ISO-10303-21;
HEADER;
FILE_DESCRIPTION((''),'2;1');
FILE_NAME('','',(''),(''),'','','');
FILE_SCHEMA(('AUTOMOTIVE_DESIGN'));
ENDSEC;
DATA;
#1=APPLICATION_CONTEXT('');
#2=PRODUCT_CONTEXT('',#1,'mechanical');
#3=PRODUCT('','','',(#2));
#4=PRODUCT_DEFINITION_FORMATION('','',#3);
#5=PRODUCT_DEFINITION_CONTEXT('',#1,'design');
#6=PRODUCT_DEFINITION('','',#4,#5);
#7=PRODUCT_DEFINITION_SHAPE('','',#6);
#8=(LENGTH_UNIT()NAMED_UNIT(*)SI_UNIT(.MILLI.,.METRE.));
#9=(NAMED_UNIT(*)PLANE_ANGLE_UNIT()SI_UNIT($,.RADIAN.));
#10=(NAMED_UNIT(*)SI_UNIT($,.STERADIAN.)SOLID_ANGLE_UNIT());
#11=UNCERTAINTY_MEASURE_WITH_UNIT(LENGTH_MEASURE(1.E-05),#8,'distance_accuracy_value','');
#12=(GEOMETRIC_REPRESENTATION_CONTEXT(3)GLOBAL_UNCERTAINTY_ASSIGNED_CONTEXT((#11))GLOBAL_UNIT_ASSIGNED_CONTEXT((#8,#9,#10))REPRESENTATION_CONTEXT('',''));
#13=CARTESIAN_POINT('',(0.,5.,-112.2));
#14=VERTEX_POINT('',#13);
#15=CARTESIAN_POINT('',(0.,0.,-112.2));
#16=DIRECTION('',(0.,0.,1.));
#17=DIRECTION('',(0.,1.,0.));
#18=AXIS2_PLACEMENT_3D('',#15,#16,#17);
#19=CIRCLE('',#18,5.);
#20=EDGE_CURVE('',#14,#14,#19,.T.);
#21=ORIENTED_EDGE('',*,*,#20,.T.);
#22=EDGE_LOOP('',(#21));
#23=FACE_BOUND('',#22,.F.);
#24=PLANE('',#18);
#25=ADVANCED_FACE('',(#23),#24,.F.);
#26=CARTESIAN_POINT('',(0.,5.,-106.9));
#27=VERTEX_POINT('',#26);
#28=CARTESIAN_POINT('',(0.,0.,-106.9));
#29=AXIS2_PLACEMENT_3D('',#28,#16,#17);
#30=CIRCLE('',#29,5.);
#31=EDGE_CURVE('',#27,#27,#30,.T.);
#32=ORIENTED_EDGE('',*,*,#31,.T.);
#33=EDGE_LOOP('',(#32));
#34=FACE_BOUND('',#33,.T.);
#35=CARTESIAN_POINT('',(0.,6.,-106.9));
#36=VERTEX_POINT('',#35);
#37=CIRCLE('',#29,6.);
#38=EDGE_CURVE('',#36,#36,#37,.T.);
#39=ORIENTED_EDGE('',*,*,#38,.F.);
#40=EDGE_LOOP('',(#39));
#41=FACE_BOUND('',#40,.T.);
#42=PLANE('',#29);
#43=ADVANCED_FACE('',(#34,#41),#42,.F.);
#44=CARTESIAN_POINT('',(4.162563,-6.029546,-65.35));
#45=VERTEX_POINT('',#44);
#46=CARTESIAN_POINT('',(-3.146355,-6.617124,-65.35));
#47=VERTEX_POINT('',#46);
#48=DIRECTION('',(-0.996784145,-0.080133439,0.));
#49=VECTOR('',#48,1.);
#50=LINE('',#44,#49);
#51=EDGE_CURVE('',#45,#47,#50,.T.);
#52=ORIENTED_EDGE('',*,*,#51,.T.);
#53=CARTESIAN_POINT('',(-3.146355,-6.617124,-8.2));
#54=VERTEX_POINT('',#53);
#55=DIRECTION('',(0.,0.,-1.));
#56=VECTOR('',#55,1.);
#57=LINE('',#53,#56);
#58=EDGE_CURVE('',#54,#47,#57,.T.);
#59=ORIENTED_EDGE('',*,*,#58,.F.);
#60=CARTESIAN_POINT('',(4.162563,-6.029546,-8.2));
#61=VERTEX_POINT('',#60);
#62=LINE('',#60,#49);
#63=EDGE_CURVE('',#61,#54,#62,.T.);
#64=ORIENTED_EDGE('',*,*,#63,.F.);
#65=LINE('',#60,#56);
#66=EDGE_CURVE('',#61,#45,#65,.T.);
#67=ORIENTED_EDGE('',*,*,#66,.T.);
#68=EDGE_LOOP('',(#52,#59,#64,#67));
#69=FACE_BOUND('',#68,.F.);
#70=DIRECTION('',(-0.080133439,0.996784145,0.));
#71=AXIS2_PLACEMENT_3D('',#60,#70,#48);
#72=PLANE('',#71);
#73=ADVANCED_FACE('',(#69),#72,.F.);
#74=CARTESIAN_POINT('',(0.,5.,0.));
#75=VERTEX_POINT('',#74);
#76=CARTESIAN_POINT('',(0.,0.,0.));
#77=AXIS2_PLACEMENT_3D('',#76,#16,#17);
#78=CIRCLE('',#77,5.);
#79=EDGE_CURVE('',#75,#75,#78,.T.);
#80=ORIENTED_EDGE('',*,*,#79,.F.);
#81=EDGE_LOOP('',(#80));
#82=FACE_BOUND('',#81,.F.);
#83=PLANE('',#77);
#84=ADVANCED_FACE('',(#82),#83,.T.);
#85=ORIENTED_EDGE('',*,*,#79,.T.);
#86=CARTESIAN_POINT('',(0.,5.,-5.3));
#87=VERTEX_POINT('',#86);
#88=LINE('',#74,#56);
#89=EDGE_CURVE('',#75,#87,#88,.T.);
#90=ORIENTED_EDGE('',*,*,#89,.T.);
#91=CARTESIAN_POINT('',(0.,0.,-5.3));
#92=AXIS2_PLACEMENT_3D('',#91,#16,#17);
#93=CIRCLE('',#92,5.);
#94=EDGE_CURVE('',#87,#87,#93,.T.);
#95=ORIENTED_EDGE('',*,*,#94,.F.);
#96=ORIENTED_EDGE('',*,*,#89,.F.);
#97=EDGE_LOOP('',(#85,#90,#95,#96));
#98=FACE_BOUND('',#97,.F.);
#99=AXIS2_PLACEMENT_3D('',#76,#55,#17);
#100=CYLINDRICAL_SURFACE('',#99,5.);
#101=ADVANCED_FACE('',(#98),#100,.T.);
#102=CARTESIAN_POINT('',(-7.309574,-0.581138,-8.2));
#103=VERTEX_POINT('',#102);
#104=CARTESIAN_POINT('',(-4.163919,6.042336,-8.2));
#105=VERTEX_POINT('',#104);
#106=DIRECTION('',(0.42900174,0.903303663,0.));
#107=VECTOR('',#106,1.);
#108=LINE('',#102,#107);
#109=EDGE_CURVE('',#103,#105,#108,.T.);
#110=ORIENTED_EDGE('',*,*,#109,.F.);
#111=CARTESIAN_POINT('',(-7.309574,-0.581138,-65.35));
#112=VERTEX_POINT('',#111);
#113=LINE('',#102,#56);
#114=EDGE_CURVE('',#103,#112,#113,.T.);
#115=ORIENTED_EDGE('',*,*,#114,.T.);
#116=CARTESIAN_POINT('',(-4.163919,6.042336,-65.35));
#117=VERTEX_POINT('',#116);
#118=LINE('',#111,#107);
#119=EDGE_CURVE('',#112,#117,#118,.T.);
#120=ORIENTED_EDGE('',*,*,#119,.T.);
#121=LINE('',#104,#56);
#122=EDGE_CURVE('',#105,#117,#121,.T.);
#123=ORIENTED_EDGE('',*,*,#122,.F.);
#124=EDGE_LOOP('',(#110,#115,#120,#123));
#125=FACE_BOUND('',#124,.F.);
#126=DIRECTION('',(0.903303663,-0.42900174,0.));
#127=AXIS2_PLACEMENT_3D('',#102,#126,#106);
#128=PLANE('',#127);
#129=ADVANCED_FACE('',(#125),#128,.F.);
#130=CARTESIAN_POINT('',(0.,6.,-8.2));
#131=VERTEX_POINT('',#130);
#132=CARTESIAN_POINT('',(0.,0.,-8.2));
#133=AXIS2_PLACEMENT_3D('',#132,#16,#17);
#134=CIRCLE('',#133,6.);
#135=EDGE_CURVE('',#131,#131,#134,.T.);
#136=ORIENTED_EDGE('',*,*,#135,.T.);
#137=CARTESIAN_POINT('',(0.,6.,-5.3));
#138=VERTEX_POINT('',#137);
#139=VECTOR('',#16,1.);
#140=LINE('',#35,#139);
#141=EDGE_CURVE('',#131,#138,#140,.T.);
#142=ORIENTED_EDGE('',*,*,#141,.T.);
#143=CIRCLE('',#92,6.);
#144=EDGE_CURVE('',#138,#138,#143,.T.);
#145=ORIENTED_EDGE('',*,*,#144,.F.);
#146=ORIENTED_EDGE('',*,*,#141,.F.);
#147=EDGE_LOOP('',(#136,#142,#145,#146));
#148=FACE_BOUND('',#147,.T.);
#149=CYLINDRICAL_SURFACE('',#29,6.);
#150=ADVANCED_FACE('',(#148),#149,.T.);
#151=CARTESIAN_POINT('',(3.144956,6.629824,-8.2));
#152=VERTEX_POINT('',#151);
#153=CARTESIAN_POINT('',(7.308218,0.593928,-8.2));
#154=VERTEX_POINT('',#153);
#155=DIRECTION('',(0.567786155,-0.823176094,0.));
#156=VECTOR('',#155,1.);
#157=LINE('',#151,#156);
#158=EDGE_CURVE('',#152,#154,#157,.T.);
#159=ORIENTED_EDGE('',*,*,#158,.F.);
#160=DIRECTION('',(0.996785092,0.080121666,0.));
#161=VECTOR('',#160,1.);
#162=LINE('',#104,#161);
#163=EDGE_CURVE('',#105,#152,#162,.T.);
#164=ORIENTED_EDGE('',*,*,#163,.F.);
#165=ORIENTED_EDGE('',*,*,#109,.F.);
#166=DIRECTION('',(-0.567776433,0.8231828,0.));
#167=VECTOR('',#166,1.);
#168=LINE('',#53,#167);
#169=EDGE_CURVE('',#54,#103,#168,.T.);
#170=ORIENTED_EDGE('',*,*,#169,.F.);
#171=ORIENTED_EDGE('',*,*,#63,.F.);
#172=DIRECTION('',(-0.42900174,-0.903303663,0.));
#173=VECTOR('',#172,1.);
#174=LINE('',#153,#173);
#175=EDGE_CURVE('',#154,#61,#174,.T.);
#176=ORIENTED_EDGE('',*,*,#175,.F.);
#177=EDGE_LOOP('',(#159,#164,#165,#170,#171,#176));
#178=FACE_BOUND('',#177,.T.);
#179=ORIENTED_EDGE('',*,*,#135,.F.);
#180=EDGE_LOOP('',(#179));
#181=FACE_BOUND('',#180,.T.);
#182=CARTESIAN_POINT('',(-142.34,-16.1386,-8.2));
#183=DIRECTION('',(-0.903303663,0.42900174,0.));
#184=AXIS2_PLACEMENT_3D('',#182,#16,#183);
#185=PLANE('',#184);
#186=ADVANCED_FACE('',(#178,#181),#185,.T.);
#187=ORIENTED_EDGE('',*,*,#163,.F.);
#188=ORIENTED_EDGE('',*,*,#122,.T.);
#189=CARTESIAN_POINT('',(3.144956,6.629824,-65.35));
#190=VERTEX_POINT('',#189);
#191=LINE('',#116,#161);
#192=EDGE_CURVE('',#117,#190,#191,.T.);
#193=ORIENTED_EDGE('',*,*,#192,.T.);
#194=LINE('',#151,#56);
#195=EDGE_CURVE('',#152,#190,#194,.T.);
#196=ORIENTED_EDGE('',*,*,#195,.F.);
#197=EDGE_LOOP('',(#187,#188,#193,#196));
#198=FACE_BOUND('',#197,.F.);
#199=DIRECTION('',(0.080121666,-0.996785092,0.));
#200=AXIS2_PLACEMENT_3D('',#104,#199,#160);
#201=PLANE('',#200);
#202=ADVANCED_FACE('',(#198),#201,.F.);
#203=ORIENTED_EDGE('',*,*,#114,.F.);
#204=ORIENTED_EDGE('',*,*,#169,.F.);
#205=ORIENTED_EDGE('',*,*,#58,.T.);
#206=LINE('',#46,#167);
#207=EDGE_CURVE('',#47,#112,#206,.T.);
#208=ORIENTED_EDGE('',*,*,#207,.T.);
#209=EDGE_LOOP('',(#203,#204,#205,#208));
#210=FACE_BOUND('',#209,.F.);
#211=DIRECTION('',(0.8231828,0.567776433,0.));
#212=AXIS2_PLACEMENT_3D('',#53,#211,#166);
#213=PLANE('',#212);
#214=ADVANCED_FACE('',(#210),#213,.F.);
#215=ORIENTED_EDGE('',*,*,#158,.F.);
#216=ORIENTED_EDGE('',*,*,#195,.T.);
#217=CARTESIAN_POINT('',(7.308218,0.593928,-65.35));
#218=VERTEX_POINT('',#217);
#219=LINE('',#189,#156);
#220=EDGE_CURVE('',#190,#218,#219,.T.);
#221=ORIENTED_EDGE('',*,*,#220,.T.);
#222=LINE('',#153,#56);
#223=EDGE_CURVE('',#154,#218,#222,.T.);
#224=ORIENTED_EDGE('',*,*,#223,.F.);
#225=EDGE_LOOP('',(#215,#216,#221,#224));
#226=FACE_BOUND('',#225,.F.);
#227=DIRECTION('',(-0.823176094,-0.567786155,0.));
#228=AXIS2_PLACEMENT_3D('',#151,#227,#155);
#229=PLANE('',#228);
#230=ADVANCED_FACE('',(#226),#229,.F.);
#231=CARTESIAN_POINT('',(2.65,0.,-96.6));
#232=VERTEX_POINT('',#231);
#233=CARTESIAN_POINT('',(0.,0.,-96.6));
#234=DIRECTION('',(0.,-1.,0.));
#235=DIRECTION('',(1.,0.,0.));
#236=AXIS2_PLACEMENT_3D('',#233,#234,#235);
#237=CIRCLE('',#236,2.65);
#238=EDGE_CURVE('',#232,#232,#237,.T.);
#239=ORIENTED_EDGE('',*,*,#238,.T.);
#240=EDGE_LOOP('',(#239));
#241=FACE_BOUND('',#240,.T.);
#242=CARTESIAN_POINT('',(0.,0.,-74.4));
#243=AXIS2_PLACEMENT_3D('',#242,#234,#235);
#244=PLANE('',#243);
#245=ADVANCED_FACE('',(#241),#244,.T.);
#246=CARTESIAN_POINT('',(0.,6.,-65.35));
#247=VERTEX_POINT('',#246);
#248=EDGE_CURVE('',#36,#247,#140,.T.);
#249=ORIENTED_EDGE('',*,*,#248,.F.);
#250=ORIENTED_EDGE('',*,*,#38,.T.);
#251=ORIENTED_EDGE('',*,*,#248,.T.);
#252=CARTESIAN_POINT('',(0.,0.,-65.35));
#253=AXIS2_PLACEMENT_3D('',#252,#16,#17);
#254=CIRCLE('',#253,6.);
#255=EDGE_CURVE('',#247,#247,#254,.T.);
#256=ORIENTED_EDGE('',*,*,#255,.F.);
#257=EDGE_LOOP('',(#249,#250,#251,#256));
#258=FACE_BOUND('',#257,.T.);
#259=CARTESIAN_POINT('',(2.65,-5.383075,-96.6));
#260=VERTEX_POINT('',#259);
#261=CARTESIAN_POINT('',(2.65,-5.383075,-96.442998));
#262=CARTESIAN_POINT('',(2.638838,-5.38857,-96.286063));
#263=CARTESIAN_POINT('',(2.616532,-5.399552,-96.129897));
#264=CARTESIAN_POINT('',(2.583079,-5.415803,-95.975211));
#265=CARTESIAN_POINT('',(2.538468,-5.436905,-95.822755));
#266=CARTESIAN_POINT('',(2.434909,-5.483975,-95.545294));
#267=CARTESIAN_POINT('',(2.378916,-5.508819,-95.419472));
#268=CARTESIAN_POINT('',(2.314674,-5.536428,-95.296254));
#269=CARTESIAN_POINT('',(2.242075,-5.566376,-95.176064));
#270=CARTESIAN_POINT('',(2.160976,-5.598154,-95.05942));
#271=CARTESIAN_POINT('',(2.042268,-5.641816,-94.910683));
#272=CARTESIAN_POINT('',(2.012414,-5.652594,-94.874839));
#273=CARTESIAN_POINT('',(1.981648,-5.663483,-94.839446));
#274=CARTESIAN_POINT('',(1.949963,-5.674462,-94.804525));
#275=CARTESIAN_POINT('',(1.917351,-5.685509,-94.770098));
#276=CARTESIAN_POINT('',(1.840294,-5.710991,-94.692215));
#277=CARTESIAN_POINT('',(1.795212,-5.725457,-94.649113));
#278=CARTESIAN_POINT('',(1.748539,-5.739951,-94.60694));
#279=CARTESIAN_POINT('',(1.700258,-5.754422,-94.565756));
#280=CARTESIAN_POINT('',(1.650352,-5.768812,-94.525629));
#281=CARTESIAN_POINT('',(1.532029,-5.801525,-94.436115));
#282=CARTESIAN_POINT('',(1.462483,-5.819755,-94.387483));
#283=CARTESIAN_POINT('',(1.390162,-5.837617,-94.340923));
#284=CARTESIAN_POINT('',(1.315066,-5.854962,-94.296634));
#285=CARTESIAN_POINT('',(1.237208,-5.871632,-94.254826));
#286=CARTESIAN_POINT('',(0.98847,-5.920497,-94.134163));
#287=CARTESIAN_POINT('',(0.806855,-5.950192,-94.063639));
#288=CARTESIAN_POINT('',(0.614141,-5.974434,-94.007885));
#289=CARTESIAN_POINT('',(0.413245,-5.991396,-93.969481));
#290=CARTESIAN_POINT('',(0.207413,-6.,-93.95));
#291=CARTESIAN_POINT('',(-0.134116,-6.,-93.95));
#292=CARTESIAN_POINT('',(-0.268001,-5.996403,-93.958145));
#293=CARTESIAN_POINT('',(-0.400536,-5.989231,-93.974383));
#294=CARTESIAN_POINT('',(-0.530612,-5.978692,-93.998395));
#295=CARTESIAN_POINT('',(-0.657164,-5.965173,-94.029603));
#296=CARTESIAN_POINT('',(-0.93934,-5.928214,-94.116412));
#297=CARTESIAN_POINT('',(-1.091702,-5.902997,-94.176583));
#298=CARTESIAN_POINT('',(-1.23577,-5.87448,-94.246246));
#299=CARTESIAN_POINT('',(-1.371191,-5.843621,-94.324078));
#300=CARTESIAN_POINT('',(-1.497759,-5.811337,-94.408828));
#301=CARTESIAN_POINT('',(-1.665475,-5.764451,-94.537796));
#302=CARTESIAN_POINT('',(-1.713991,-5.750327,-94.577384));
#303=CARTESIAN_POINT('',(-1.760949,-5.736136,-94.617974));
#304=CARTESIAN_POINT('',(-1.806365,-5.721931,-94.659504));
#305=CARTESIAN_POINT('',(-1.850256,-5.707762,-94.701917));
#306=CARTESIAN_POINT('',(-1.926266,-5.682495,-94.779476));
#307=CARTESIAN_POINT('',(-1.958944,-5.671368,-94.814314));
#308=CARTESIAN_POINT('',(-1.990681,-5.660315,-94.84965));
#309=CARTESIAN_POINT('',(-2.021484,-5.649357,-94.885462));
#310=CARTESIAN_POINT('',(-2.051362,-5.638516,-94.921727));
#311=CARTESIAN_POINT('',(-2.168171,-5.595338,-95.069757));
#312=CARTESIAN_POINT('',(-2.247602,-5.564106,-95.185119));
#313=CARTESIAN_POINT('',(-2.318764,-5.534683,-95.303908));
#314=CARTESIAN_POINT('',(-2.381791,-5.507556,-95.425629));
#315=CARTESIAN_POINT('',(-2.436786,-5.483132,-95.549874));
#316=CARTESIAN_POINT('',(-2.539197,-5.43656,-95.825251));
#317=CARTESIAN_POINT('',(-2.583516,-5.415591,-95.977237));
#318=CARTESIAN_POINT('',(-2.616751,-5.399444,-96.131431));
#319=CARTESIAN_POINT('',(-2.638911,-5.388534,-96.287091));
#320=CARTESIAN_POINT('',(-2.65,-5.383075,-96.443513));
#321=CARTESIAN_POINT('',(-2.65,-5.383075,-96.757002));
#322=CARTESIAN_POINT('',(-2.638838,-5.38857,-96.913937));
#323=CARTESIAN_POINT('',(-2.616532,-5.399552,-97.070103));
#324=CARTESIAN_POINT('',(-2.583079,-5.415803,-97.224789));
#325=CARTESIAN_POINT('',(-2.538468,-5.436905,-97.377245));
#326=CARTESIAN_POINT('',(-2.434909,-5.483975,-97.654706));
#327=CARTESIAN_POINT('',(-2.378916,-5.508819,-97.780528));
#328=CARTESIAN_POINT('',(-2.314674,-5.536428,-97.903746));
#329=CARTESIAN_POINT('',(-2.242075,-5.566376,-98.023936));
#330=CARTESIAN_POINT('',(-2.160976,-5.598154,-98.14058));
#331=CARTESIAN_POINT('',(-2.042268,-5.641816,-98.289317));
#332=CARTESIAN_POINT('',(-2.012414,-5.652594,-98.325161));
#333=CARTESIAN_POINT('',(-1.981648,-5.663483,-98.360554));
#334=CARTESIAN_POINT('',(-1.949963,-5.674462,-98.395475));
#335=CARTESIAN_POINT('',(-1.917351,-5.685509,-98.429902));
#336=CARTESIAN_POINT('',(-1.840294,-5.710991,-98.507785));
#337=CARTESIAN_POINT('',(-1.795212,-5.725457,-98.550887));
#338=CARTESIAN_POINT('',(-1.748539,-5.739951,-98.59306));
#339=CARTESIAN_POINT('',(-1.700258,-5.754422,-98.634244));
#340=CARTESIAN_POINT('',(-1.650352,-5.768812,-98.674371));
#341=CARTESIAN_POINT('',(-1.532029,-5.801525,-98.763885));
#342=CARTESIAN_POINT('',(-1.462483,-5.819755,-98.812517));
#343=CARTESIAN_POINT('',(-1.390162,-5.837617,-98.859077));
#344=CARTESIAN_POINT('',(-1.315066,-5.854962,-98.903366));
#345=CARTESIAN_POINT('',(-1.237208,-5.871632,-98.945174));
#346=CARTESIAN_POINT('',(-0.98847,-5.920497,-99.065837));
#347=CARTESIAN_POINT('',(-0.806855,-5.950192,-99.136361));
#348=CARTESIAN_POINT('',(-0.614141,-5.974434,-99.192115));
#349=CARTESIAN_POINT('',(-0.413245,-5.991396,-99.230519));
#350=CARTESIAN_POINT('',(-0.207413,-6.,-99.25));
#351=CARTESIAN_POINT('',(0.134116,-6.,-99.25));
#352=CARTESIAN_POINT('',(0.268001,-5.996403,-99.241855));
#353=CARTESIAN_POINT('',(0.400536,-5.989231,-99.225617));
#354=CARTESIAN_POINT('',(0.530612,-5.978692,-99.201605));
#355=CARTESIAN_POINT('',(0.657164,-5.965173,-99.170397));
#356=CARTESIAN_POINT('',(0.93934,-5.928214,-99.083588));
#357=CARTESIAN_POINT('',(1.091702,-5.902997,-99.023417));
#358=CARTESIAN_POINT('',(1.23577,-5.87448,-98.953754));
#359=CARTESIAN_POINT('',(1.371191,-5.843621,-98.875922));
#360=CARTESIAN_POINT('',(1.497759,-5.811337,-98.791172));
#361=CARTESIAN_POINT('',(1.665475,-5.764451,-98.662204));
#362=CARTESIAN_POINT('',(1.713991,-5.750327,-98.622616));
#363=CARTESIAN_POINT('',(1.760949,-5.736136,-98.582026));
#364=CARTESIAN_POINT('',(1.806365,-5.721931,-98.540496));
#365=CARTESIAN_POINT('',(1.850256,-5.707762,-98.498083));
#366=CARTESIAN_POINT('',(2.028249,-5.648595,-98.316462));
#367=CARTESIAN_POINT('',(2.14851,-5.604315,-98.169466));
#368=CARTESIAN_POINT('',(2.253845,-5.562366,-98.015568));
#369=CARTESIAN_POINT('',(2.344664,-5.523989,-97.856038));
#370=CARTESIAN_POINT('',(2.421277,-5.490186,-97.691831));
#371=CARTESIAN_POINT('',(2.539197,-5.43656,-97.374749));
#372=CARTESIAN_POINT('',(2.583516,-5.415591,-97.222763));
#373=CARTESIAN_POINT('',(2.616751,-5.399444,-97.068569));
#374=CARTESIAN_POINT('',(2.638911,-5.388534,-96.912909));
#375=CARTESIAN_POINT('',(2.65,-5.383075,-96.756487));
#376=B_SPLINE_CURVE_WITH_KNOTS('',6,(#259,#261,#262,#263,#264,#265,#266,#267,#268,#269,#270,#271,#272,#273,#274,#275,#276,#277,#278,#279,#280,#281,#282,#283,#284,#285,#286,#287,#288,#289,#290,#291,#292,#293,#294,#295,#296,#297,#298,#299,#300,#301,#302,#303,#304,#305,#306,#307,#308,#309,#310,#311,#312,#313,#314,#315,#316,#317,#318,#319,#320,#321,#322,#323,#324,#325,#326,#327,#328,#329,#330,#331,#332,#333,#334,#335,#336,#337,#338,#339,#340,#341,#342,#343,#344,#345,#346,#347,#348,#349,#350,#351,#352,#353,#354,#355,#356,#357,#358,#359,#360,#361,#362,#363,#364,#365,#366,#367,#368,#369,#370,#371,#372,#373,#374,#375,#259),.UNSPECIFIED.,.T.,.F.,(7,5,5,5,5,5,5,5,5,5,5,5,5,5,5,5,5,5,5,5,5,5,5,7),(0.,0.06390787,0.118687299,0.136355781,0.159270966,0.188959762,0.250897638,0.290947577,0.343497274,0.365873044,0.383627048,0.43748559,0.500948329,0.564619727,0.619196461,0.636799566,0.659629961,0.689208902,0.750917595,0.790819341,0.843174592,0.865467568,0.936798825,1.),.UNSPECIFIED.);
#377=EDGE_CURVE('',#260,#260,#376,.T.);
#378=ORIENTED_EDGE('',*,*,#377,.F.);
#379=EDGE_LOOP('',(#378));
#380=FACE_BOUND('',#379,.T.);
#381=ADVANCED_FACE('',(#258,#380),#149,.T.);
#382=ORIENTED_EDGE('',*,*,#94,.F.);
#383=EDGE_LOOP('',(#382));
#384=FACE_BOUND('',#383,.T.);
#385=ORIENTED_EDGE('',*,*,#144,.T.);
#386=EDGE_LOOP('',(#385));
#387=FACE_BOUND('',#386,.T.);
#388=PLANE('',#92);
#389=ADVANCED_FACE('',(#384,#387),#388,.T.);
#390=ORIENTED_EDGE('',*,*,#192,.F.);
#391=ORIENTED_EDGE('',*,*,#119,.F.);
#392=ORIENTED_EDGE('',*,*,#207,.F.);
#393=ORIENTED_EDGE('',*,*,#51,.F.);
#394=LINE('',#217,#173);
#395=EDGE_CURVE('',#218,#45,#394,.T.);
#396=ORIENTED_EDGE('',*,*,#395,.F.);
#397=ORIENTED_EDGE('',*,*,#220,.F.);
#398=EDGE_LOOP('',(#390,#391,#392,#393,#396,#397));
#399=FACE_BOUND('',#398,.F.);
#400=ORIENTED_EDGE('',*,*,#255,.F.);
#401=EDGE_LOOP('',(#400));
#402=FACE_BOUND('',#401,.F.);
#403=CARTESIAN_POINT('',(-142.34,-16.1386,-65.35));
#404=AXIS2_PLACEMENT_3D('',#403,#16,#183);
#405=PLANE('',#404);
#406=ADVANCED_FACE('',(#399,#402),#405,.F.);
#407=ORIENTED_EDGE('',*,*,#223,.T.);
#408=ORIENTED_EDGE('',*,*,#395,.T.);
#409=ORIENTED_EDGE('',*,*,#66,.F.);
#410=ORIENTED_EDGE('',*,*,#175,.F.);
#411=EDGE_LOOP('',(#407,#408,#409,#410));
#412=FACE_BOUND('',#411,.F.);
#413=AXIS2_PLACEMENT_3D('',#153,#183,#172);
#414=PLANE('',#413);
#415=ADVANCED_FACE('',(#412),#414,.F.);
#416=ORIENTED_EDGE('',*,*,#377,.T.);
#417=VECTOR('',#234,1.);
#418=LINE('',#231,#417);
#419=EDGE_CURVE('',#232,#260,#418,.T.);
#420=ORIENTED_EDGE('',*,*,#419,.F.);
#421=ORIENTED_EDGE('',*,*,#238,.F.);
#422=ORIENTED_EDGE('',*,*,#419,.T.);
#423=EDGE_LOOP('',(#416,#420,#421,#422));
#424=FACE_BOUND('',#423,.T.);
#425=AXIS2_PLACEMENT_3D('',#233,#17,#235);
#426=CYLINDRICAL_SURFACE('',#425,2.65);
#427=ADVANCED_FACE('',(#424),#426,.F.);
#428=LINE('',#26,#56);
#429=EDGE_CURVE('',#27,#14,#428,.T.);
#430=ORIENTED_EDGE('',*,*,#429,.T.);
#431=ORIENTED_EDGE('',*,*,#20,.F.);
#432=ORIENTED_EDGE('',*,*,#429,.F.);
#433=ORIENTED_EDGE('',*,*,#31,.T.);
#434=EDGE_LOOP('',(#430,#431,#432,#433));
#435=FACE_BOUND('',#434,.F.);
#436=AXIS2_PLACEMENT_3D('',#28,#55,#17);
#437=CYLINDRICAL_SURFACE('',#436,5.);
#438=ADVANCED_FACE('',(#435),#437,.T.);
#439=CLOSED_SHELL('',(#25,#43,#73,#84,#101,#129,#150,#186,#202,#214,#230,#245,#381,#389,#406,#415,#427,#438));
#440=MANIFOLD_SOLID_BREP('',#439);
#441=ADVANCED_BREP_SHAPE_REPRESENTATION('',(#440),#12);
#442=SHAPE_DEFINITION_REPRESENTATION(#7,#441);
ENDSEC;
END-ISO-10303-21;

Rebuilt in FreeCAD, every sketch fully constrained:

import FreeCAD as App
import Part
import Sketcher
Q = App.Units.Quantity


def add_polygon(sketch, points):
    """Adds a closed chain of lines whose ends are joined by coincident constraints."""
    first, n = sketch.GeometryCount, len(points)
    for a, b in zip(points, points[1:] + points[:1]):
        sketch.addGeometry(Part.LineSegment(App.Vector(*a, 0), App.Vector(*b, 0)), False)
    for i in range(n):
        sketch.addConstraint(Sketcher.Constraint("Coincident", first + i, 2, first + (i + 1) % n, 1))

doc = App.newDocument("Part")
body = doc.addObject("PartDesign::Body", "Body")

sketch1 = body.newObject("Sketcher::SketchObject", "Sketch")
sketch1.AttachmentSupport = (doc.getObject("YZ_Plane"), [""])
sketch1.MapMode = "FlatFace"
add_polygon(sketch1, [(5, -5.3), (5, 0), (0, 0), (0, -112.2), (5, -112.2), (5, -106.9), (6, -106.9), (6, -5.3)])
sketch1.addConstraint([
    Sketcher.Constraint("Vertical", 0),
    Sketcher.Constraint("Horizontal", 1),
    Sketcher.Constraint("Vertical", 2),
    Sketcher.Constraint("Horizontal", 3),
    Sketcher.Constraint("Vertical", 4),
    Sketcher.Constraint("Horizontal", 5),
    Sketcher.Constraint("Vertical", 6),
    Sketcher.Constraint("Horizontal", 7),
    Sketcher.Constraint("Coincident", 1, 2, -1, 1),
    Sketcher.Constraint("Vertical", 0, 2, 3, 2),
    Sketcher.Constraint("Equal", 0, 4),
    Sketcher.Constraint("DistanceX", 1, 2, 1, 1, Q("5 mm")),
    Sketcher.Constraint("DistanceY", 0, 1, 0, 2, Q("5.3 mm")),
    Sketcher.Constraint("DistanceY", 2, 2, 2, 1, Q("112.2 mm")),
    Sketcher.Constraint("DistanceX", -1, 1, 5, 2, Q("6 mm")),
])
revolution = body.newObject("PartDesign::Revolution", "Revolution")
revolution.Profile = sketch1
revolution.ReferenceAxis = (sketch1, ["V_Axis"])
revolution.Angle = 360

sketch2 = body.newObject("Sketcher::SketchObject", "Sketch001")
sketch2.AttachmentSupport = (doc.getObject("XZ_Plane"), [""])
sketch2.MapMode = "FlatFace"
sketch2.addGeometry(Part.Circle(App.Vector(0, -96.6, 0), App.Vector(0, 0, 1), 2.6), False)
sketch2.addConstraint([
    Sketcher.Constraint("PointOnObject", 0, 3, -2),
    Sketcher.Constraint("Diameter", 0, Q("5.3 mm")),
    Sketcher.Constraint("DistanceY", 0, 3, -1, 1, Q("96.6 mm")),
])
pocket1 = body.newObject("PartDesign::Pocket", "Pocket")
pocket1.Profile = sketch2
pocket1.Length = 10
pocket1.Reversed = True

sketch3 = body.newObject("Sketcher::SketchObject", "Sketch002")
sketch3.AttachmentSupport = (doc.getObject("XY_Plane"), [""])
sketch3.MapMode = "FlatFace"
sketch3.AttachmentOffset = App.Placement(App.Vector(0, 0, -8.2), App.Rotation())
add_polygon(sketch3, [(-7, -1), (-3, -7), (4, -6), (7, 1), (3, 7), (-4, 6)])
sketch3.addConstraint([
    Sketcher.Constraint("Parallel", 0, 3),
    Sketcher.Constraint("Parallel", 1, 4),
    Sketcher.Constraint("Parallel", 2, 5),
    Sketcher.Constraint("Equal", 0, 1),
    Sketcher.Constraint("Equal", 1, 2),
    Sketcher.Constraint("Equal", 2, 3),
    Sketcher.Constraint("DistanceY", -1, 1, 2, 2, Q("0.594 mm")),
    Sketcher.Constraint("DistanceX", -1, 1, 3, 2, Q("3.145 mm")),
    Sketcher.Constraint("DistanceX", 4, 2, -1, 1, Q("4.164 mm")),
    Sketcher.Constraint("DistanceY", 0, 2, 2, 2, Q("7.211 mm")),
    Sketcher.Constraint("DistanceY", 2, 2, 3, 2, Q("6.036 mm")),
    Sketcher.Constraint("DistanceY", 1, 2, 4, 2, Q("12.072 mm")),
])
pad1 = body.newObject("PartDesign::Pad", "Pad")
pad1.Profile = sketch3
pad1.Length = 57.15
pad1.Reversed = True

doc.recompute()
